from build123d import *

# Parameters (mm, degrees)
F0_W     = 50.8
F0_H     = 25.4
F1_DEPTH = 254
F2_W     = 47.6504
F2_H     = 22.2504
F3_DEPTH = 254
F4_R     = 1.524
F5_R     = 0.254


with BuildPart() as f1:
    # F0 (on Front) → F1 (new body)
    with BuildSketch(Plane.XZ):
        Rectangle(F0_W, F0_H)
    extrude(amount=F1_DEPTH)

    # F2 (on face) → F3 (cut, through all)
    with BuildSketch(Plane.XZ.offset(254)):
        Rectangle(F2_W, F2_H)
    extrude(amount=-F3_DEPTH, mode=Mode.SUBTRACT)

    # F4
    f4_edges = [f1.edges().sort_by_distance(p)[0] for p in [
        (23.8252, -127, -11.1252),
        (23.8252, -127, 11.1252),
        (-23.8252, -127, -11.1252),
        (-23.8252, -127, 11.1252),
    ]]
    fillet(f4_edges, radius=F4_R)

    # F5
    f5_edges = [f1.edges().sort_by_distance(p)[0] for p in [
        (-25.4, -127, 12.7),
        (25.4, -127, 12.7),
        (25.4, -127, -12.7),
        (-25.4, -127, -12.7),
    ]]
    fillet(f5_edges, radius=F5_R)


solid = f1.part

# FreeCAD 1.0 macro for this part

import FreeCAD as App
import Part
import Sketcher
from FreeCAD import Vector
Q = App.Units.Quantity


def edges_at(feature, points):
    """Names of the edges that pass closest to the given points."""
    edges = feature.Shape.Edges
    near = lambda p: min(range(len(edges)), key=lambda i: edges[i].distToShape(Part.Vertex(*p))[0])
    return sorted({f"Edge{near(p) + 1}" for p in points})

doc = App.newDocument("Part")
body = doc.addObject("PartDesign::Body", "Body")

# Sketch on XZ plane
sketch1 = body.newObject("Sketcher::SketchObject", "Sketch")
sketch1.AttachmentSupport = (doc.getObject("XZ_Plane"), [""])
sketch1.MapMode = "FlatFace"
sketch1.addGeometry(Part.LineSegment(Vector(-25, 13, 0), Vector(-25, -13, 0)), False)
sketch1.addGeometry(Part.LineSegment(Vector(-25, -13, 0), Vector(25, -13, 0)), False)
sketch1.addGeometry(Part.LineSegment(Vector(25, -13, 0), Vector(25, 13, 0)), False)
sketch1.addGeometry(Part.LineSegment(Vector(25, 13, 0), Vector(-25, 13, 0)), False)
sketch1.addConstraint(Sketcher.Constraint("Coincident", 0, 2, 1, 1))
sketch1.addConstraint(Sketcher.Constraint("Coincident", 1, 2, 2, 1))
sketch1.addConstraint(Sketcher.Constraint("Coincident", 2, 2, 3, 1))
sketch1.addConstraint(Sketcher.Constraint("Coincident", 3, 2, 0, 1))
sketch1.addConstraint(Sketcher.Constraint("Vertical", 0))
sketch1.addConstraint(Sketcher.Constraint("Horizontal", 1))
sketch1.addConstraint(Sketcher.Constraint("Vertical", 2))
sketch1.addConstraint(Sketcher.Constraint("Horizontal", 3))
sketch1.addConstraint(Sketcher.Constraint("Symmetric", 0, 2, 2, 2, -1, 1))
sketch1.addConstraint(Sketcher.Constraint("DistanceX", 1, 1, 1, 2, Q("2 in")))
sketch1.addConstraint(Sketcher.Constraint("DistanceY", 0, 2, 0, 1, Q("1 in")))
pad1 = body.newObject("PartDesign::Pad", "Pad")
pad1.Profile = sketch1
pad1.Length = Q("10 in")

# Sketch on XZ plane
sketch2 = body.newObject("Sketcher::SketchObject", "Sketch001")
sketch2.AttachmentSupport = (doc.getObject("XZ_Plane"), [""])
sketch2.MapMode = "FlatFace"
sketch2.AttachmentOffset = App.Placement(Vector(0, 0, 10 * 25.4), App.Rotation())
sketch2.addGeometry(Part.LineSegment(Vector(-24, 11, 0), Vector(-24, -11, 0)), False)
sketch2.addGeometry(Part.LineSegment(Vector(-24, -11, 0), Vector(24, -11, 0)), False)
sketch2.addGeometry(Part.LineSegment(Vector(24, -11, 0), Vector(24, 11, 0)), False)
sketch2.addGeometry(Part.LineSegment(Vector(24, 11, 0), Vector(-24, 11, 0)), False)
sketch2.addConstraint(Sketcher.Constraint("Coincident", 0, 2, 1, 1))
sketch2.addConstraint(Sketcher.Constraint("Coincident", 1, 2, 2, 1))
sketch2.addConstraint(Sketcher.Constraint("Coincident", 2, 2, 3, 1))
sketch2.addConstraint(Sketcher.Constraint("Coincident", 3, 2, 0, 1))
sketch2.addConstraint(Sketcher.Constraint("Vertical", 0))
sketch2.addConstraint(Sketcher.Constraint("Horizontal", 1))
sketch2.addConstraint(Sketcher.Constraint("Vertical", 2))
sketch2.addConstraint(Sketcher.Constraint("Horizontal", 3))
sketch2.addConstraint(Sketcher.Constraint("Symmetric", 0, 2, 2, 2, -1, 1))
sketch2.addConstraint(Sketcher.Constraint("DistanceX", 1, 1, 1, 2, Q("1.876 in")))
sketch2.addConstraint(Sketcher.Constraint("DistanceY", 0, 2, 0, 1, Q("0.876 in")))
pocket1 = body.newObject("PartDesign::Pocket", "Pocket")
pocket1.Profile = sketch2
pocket1.Type = "ThroughAll"
doc.recompute()

fillet = body.newObject("PartDesign::Fillet", "Fillet")
fillet.Base = (pocket1, edges_at(pocket1, [
    (23.825, -127, -11.125),
    (23.825, -127, 11.125),
    (-23.825, -127, -11.125),
    (-23.825, -127, 11.125),
]))
fillet.Radius = Q("0.06 in")
doc.recompute()

fillet2 = body.newObject("PartDesign::Fillet", "Fillet001")
fillet2.Base = (fillet, edges_at(fillet, [
    (-25.4, -127, 12.7),
    (25.4, -127, 12.7),
    (25.4, -127, -12.7),
    (-25.4, -127, -12.7),
]))
fillet2.Radius = Q("0.01 in")

doc.recompute()
